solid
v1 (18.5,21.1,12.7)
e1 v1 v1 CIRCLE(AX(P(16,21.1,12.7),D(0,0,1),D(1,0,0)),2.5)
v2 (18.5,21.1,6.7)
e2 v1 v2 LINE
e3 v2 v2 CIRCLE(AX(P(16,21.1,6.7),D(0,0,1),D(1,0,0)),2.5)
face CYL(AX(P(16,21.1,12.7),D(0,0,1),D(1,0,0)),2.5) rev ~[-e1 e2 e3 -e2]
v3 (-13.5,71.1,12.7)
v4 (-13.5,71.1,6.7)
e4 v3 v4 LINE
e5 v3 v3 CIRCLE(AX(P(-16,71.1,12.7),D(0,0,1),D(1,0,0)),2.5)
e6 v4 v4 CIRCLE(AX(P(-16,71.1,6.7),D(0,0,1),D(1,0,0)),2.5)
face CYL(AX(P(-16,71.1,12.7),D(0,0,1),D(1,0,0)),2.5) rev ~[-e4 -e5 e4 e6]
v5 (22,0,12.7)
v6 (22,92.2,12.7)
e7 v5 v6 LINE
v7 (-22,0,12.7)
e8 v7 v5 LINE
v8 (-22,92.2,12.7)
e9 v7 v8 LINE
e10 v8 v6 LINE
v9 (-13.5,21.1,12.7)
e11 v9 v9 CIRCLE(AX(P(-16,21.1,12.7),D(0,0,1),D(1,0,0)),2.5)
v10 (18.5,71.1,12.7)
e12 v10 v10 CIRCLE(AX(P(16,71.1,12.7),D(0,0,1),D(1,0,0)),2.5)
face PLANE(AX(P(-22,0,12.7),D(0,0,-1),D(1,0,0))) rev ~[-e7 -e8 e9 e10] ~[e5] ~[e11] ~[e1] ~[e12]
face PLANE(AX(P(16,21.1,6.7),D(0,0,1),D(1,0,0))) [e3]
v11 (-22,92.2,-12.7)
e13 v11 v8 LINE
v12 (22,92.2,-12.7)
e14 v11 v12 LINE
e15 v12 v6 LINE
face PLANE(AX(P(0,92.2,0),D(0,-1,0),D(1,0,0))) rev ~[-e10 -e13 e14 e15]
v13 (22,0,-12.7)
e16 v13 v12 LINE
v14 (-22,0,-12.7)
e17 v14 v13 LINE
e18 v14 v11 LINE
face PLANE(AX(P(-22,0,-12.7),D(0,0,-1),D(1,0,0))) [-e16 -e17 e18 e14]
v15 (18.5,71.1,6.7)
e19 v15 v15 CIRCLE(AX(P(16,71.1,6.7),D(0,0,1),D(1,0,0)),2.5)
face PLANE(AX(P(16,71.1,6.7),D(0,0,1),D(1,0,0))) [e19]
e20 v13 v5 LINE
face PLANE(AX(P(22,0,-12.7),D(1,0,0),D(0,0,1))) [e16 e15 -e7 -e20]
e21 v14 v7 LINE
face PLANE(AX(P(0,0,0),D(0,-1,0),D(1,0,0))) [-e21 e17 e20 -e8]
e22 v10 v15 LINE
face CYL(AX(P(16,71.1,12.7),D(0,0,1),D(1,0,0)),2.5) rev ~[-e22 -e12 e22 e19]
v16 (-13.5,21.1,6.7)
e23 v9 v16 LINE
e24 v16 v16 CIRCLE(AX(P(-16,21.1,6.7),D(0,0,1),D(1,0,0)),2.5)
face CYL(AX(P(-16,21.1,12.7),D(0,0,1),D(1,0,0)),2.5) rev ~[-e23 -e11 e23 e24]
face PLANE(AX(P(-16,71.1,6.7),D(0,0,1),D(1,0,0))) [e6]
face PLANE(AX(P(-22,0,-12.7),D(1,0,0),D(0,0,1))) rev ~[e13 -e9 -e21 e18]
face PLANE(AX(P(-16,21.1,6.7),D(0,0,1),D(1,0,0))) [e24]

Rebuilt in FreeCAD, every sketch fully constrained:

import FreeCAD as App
import Part
import Sketcher
from FreeCAD import Vector
Q = App.Units.Quantity

doc = App.newDocument("Part")
body = doc.addObject("PartDesign::Body", "Body")

# Sketch on XZ plane
sketch1 = doc.addObject("Sketcher::SketchObject", "Sketch")
body.addObject(sketch1)
sketch1.AttachmentSupport = (doc.XZ_Plane, [""])
sketch1.MapMode = "FlatFace"
sketch1.addGeometry([
    Part.LineSegment(Vector(-22, 13, 0), Vector(-22, -13, 0)),
    Part.LineSegment(Vector(-22, -13, 0), Vector(22, -13, 0)),
    Part.LineSegment(Vector(22, -13, 0), Vector(22, 13, 0)),
    Part.LineSegment(Vector(22, 13, 0), Vector(-22, 13, 0)),
], False)
sketch1.addConstraint([
    Sketcher.Constraint("Coincident", 0, 2, 1, 1),
    Sketcher.Constraint("Coincident", 1, 2, 2, 1),
    Sketcher.Constraint("Coincident", 2, 2, 3, 1),
    Sketcher.Constraint("Coincident", 3, 2, 0, 1),
    Sketcher.Constraint("Vertical", 0),
    Sketcher.Constraint("Horizontal", 1),
    Sketcher.Constraint("Vertical", 2),
    Sketcher.Constraint("Horizontal", 3),
    Sketcher.Constraint("Symmetric", 0, 2, 2, 2, -1, 1),
    Sketcher.Constraint("DistanceX", 1, 1, 1, 2, Q("44 mm")),
    Sketcher.Constraint("DistanceY", 0, 2, 0, 1, Q("25.4 mm")),
])
pad1 = doc.addObject("PartDesign::Pad", "Pad")
body.addObject(pad1)
pad1.Profile = sketch1
pad1.Length = 92.2
pad1.Reversed = True

# Sketch on XY plane
sketch2 = doc.addObject("Sketcher::SketchObject", "Sketch001")
body.addObject(sketch2)
sketch2.AttachmentSupport = (doc.XY_Plane, [""])
sketch2.MapMode = "FlatFace"
sketch2.AttachmentOffset = App.Placement(Vector(0, 0, 12.7), App.Rotation())
sketch2.addGeometry([
    Part.Circle(Vector(-16, 71.1, 0), Vector(0, 0, 1), 2.5),
    Part.Circle(Vector(-16, 21.1, 0), Vector(0, 0, 1), 2.5),
    Part.Circle(Vector(16, 21.1, 0), Vector(0, 0, 1), 2.5),
    Part.Circle(Vector(16, 71.1, 0), Vector(0, 0, 1), 2.5),
], False)
sketch2.addConstraint([
    Sketcher.Constraint("Equal", 0, 1),
    Sketcher.Constraint("Equal", 1, 2),
    Sketcher.Constraint("Equal", 2, 3),
    Sketcher.Constraint("Symmetric", 1, 3, 2, 3, -2),
    Sketcher.Constraint("Symmetric", 0, 3, 3, 3, -2),
    Sketcher.Constraint("Vertical", 0, 3, 1, 3),
    Sketcher.Constraint("Diameter", 0, Q("5 mm")),
    Sketcher.Constraint("DistanceX", 0, 3, -1, 1, Q("16 mm")),
    Sketcher.Constraint("DistanceY", 1, 3, 0, 3, Q("50 mm")),
    Sketcher.Constraint("DistanceY", -1, 1, 0, 3, Q("71.1 mm")),
])
pocket1 = doc.addObject("PartDesign::Pocket", "Pocket")
body.addObject(pocket1)
pocket1.Profile = sketch2
pocket1.Length = 6

doc.recompute()
